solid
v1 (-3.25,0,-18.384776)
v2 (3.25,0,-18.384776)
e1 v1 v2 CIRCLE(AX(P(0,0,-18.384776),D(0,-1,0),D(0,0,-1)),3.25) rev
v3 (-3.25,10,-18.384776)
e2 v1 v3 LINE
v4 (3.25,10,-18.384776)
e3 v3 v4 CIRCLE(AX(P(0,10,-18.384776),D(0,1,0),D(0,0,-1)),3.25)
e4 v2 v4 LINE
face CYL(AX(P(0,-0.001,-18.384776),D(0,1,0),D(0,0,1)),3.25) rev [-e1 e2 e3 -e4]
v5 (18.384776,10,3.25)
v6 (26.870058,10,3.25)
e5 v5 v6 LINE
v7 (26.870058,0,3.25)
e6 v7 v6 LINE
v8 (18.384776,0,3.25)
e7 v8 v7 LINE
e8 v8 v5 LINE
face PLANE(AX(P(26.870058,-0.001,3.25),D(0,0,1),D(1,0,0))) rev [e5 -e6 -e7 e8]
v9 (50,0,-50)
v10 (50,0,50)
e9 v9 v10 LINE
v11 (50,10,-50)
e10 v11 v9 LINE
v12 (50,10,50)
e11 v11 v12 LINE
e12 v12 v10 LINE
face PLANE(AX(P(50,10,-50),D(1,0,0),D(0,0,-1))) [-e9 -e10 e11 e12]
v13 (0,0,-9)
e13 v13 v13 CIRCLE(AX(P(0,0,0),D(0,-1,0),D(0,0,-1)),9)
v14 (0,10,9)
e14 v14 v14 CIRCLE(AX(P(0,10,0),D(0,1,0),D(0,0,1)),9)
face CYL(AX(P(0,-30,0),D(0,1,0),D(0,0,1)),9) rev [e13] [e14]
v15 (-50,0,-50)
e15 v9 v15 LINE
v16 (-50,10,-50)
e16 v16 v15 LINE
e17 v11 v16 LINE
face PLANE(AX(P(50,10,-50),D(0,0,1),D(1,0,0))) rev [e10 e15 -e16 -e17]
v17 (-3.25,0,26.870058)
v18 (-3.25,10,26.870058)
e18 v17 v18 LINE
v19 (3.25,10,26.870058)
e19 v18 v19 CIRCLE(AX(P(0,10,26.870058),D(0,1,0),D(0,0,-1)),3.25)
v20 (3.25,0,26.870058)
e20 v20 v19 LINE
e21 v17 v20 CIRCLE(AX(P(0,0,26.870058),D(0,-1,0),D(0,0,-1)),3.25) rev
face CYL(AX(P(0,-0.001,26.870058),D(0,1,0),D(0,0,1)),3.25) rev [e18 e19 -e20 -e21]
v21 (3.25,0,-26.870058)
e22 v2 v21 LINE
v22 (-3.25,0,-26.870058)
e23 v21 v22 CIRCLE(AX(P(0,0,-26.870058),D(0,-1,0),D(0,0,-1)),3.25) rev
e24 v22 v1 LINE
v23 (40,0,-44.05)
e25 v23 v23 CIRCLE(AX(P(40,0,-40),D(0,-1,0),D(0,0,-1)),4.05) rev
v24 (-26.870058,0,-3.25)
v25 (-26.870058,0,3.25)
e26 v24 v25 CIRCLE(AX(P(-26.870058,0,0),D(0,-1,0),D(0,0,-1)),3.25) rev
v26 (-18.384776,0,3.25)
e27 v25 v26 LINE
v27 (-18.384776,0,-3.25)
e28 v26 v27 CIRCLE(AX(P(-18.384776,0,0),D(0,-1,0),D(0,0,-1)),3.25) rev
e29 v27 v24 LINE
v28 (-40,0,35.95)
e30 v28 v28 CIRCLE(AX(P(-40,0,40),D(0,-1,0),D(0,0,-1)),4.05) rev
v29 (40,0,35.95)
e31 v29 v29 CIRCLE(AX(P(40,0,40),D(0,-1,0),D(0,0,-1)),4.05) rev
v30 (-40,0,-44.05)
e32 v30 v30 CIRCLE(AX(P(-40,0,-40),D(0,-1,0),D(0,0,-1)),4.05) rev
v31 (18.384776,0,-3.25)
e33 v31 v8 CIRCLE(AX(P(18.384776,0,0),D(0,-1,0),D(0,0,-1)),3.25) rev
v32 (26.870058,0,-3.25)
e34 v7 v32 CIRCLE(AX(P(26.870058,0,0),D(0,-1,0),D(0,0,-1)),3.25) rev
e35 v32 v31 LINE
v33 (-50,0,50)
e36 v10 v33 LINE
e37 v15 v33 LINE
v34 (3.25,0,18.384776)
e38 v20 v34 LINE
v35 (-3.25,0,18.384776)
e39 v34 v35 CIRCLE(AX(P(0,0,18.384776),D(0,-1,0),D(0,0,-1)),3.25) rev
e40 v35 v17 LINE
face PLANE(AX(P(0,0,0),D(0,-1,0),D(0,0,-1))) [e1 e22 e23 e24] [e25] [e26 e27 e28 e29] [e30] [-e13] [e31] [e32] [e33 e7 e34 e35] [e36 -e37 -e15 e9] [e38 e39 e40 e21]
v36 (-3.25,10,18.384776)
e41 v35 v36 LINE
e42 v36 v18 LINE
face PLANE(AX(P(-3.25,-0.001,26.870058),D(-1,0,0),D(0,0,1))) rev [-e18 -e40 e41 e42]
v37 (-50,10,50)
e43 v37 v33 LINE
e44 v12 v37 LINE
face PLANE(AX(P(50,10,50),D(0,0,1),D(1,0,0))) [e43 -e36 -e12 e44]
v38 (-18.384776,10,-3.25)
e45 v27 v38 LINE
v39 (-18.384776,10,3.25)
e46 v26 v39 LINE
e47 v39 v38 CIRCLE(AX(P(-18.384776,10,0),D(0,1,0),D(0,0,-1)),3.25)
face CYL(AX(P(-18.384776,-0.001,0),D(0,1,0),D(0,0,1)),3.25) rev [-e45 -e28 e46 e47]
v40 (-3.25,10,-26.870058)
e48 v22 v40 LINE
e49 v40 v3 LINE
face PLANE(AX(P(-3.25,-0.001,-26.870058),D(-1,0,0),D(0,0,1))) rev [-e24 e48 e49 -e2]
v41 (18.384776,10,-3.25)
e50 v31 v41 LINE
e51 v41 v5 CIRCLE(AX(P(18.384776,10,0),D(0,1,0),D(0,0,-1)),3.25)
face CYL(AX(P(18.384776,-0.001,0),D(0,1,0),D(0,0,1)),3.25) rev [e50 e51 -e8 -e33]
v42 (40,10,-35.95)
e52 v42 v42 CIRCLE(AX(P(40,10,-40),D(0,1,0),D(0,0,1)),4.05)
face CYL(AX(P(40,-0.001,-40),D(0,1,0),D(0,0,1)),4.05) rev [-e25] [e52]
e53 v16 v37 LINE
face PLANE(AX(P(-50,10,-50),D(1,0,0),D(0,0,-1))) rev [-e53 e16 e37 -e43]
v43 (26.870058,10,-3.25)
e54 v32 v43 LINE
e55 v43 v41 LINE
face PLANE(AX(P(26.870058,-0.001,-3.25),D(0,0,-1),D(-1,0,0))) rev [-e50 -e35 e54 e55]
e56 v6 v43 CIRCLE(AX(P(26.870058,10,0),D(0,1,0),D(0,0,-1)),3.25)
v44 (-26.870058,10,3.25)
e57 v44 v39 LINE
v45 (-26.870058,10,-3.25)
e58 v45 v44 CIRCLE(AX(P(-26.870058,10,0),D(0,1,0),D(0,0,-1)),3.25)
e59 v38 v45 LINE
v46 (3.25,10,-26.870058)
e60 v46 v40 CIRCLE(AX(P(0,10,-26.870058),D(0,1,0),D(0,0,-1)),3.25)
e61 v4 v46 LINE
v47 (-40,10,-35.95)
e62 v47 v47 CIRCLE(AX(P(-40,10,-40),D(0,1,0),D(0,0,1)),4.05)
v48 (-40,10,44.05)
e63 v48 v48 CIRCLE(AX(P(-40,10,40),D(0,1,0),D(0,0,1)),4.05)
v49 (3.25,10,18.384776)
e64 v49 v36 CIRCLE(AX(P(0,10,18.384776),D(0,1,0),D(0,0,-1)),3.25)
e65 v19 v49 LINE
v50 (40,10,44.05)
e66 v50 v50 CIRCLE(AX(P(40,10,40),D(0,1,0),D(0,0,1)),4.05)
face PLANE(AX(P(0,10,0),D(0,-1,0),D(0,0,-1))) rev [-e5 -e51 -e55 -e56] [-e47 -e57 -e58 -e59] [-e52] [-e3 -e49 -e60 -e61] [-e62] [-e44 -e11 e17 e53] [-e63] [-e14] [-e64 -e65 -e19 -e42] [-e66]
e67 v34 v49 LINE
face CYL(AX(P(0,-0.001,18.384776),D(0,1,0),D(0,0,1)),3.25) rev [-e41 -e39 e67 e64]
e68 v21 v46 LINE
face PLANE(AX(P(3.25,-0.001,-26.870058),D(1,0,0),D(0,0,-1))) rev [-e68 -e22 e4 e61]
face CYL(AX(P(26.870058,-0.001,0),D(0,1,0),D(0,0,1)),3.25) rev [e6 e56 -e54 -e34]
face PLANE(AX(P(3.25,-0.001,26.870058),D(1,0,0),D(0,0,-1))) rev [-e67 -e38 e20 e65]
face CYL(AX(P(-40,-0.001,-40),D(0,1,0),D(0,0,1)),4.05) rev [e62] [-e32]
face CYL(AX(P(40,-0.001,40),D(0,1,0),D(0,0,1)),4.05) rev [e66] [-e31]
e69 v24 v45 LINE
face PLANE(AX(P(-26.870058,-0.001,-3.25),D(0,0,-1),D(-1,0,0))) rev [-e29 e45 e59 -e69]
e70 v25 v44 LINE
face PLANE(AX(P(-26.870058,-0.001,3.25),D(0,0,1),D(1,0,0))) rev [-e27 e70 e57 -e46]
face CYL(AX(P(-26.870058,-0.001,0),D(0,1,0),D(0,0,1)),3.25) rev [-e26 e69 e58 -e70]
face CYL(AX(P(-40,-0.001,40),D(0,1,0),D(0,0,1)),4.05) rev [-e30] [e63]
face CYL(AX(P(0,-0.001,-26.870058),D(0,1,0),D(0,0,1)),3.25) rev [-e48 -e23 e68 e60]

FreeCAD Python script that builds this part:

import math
import FreeCAD as App
import Part
import Sketcher

V = App.Vector

doc = App.newDocument("Part")
body = doc.addObject("PartDesign::Body", "Body")

# Sketch on XZ plane
sketch1 = doc.addObject("Sketcher::SketchObject", "Sketch")
body.addObject(sketch1)
sketch1.AttachmentSupport = (doc.XZ_Plane, [""])
sketch1.MapMode = "FlatFace"
sketch1.addGeometry(Part.LineSegment(V(-50, -50, 0), V(-50, 50, 0)), False)
sketch1.addGeometry(Part.LineSegment(V(-50, 50, 0), V(50, 50, 0)), False)
sketch1.addGeometry(Part.LineSegment(V(50, 50, 0), V(50, -50, 0)), False)
sketch1.addGeometry(Part.LineSegment(V(50, -50, 0), V(-50, -50, 0)), False)
sketch1.addConstraint(Sketcher.Constraint("Coincident", 0, 2, 1, 1))
sketch1.addConstraint(Sketcher.Constraint("Coincident", 1, 2, 2, 1))
sketch1.addConstraint(Sketcher.Constraint("Coincident", 2, 2, 3, 1))
sketch1.addConstraint(Sketcher.Constraint("Coincident", 3, 2, 0, 1))
sketch1.addConstraint(Sketcher.Constraint("Vertical", 0))
sketch1.addConstraint(Sketcher.Constraint("Horizontal", 1))
sketch1.addConstraint(Sketcher.Constraint("Vertical", 2))
sketch1.addConstraint(Sketcher.Constraint("Horizontal", 3))
sketch1.addConstraint(Sketcher.Constraint("Symmetric", 0, 2, 2, 2, -1, 1))
sketch1.addConstraint(Sketcher.Constraint("Equal", 3, 0))
sketch1.addConstraint(Sketcher.Constraint("DistanceX", 1, 1, 1, 2, 100.0))
pad1 = doc.addObject("PartDesign::Pad", "Pad")
body.addObject(pad1)
pad1.Profile = sketch1
pad1.Length = 10
pad1.Reversed = True

# Sketch on XZ plane
sketch2 = doc.addObject("Sketcher::SketchObject", "Sketch001")
body.addObject(sketch2)
sketch2.AttachmentSupport = (doc.XZ_Plane, [""])
sketch2.MapMode = "FlatFace"
sketch2.AttachmentOffset = App.Placement(V(0, 0, -10), App.Rotation())
sketch2.addGeometry(Part.Circle(V(0, 0, 0), V(0, 0, 1), 9), False)
sketch2.addConstraint(Sketcher.Constraint("Coincident", 0, 3, -1, 1))
sketch2.addConstraint(Sketcher.Constraint("Diameter", 0, 18.0))
pocket1 = doc.addObject("PartDesign::Pocket", "Pocket")
body.addObject(pocket1)
pocket1.Profile = sketch2
pocket1.Length = 40
pocket1.Reversed = True

# Sketch on XZ plane
sketch3 = doc.addObject("Sketcher::SketchObject", "Sketch002")
body.addObject(sketch3)
sketch3.AttachmentSupport = (doc.XZ_Plane, [""])
sketch3.MapMode = "FlatFace"
sketch3.AttachmentOffset = App.Placement(V(0, 0, -10), App.Rotation())
sketch3.addGeometry(Part.LineSegment(V(3.25, 26.870058, 0), V(3.25, 18.384776, 0)), False)
sketch3.addGeometry(Part.ArcOfCircle(Part.Circle(V(0, 18.384776, 0), V(0, 0, 1), 3.25), math.radians(180), math.radians(360)), False)
sketch3.addGeometry(Part.LineSegment(V(-3.25, 18.384776, 0), V(-3.25, 26.870058, 0)), False)
sketch3.addGeometry(Part.ArcOfCircle(Part.Circle(V(0, 26.870058, 0), V(0, 0, 1), 3.25), math.radians(0), math.radians(180)), False)
sketch3.addConstraint(Sketcher.Constraint("Tangent", 0, 2, 1, 2))
sketch3.addConstraint(Sketcher.Constraint("Tangent", 1, 1, 2, 1))
sketch3.addConstraint(Sketcher.Constraint("Tangent", 2, 2, 3, 2))
sketch3.addConstraint(Sketcher.Constraint("Tangent", 3, 1, 0, 1))
sketch3.addConstraint(Sketcher.Constraint("Vertical", 0))
sketch3.addConstraint(Sketcher.Constraint("Vertical", 2))
sketch3.addConstraint(Sketcher.Constraint("PointOnObject", 1, 3, -2))
sketch3.addConstraint(Sketcher.Constraint("Radius", 1, 3.25))
sketch3.addConstraint(Sketcher.Constraint("DistanceY", 0, 2, 0, 1, 8.485281))
sketch3.addConstraint(Sketcher.Constraint("DistanceY", -1, 1, 1, 3, 18.384776))
pocket2 = doc.addObject("PartDesign::Pocket", "Pocket001")
body.addObject(pocket2)
pocket2.Profile = sketch3
pocket2.Type = "UpToFirst"
pocket2.Reversed = True

# Sketch on XZ plane
sketch4 = doc.addObject("Sketcher::SketchObject", "Sketch003")
body.addObject(sketch4)
sketch4.AttachmentSupport = (doc.XZ_Plane, [""])
sketch4.MapMode = "FlatFace"
sketch4.AttachmentOffset = App.Placement(V(0, 0, -10), App.Rotation())
sketch4.addGeometry(Part.LineSegment(V(26.870058, -3.25, 0), V(18.384776, -3.25, 0)), False)
sketch4.addGeometry(Part.ArcOfCircle(Part.Circle(V(18.384776, 0, 0), V(0, 0, 1), 3.25), math.radians(90), math.radians(270)), False)
sketch4.addGeometry(Part.LineSegment(V(18.384776, 3.25, 0), V(26.870058, 3.25, 0)), False)
sketch4.addGeometry(Part.ArcOfCircle(Part.Circle(V(26.870058, 0, 0), V(0, 0, 1), 3.25), math.radians(-90), math.radians(90)), False)
sketch4.addConstraint(Sketcher.Constraint("Tangent", 0, 2, 1, 2))
sketch4.addConstraint(Sketcher.Constraint("Tangent", 1, 1, 2, 1))
sketch4.addConstraint(Sketcher.Constraint("Tangent", 2, 2, 3, 2))
sketch4.addConstraint(Sketcher.Constraint("Tangent", 3, 1, 0, 1))
sketch4.addConstraint(Sketcher.Constraint("Horizontal", 0))
sketch4.addConstraint(Sketcher.Constraint("Horizontal", 2))
sketch4.addConstraint(Sketcher.Constraint("PointOnObject", 1, 3, -1))
sketch4.addConstraint(Sketcher.Constraint("Radius", 1, 3.25))
sketch4.addConstraint(Sketcher.Constraint("DistanceX", 0, 2, 0, 1, 8.485281))
sketch4.addConstraint(Sketcher.Constraint("DistanceX", -1, 1, 1, 3, 18.384776))
pocket3 = doc.addObject("PartDesign::Pocket", "Pocket002")
body.addObject(pocket3)
pocket3.Profile = sketch4
pocket3.Type = "UpToFirst"
pocket3.Reversed = True

# Sketch on XZ plane
sketch5 = doc.addObject("Sketcher::SketchObject", "Sketch004")
body.addObject(sketch5)
sketch5.AttachmentSupport = (doc.XZ_Plane, [""])
sketch5.MapMode = "FlatFace"
sketch5.AttachmentOffset = App.Placement(V(0, 0, -10), App.Rotation())
sketch5.addGeometry(Part.LineSegment(V(-26.870058, 3.25, 0), V(-18.384776, 3.25, 0)), False)
sketch5.addGeometry(Part.ArcOfCircle(Part.Circle(V(-18.384776, 0, 0), V(0, 0, 1), 3.25), math.radians(-90), math.radians(90)), False)
sketch5.addGeometry(Part.LineSegment(V(-18.384776, -3.25, 0), V(-26.870058, -3.25, 0)), False)
sketch5.addGeometry(Part.ArcOfCircle(Part.Circle(V(-26.870058, 0, 0), V(0, 0, 1), 3.25), math.radians(90), math.radians(270)), False)
sketch5.addConstraint(Sketcher.Constraint("Tangent", 0, 2, 1, 2))
sketch5.addConstraint(Sketcher.Constraint("Tangent", 1, 1, 2, 1))
sketch5.addConstraint(Sketcher.Constraint("Tangent", 2, 2, 3, 2))
sketch5.addConstraint(Sketcher.Constraint("Tangent", 3, 1, 0, 1))
sketch5.addConstraint(Sketcher.Constraint("Horizontal", 0))
sketch5.addConstraint(Sketcher.Constraint("Horizontal", 2))
sketch5.addConstraint(Sketcher.Constraint("PointOnObject", 1, 3, -1))
sketch5.addConstraint(Sketcher.Constraint("Radius", 1, 3.25))
sketch5.addConstraint(Sketcher.Constraint("DistanceX", 0, 1, 0, 2, 8.485281))
sketch5.addConstraint(Sketcher.Constraint("DistanceX", 1, 3, -1, 1, 18.384776))
pocket4 = doc.addObject("PartDesign::Pocket", "Pocket003")
body.addObject(pocket4)
pocket4.Profile = sketch5
pocket4.Type = "UpToFirst"
pocket4.Reversed = True

# Sketch on XZ plane
sketch6 = doc.addObject("Sketcher::SketchObject", "Sketch005")
body.addObject(sketch6)
sketch6.AttachmentSupport = (doc.XZ_Plane, [""])
sketch6.MapMode = "FlatFace"
sketch6.AttachmentOffset = App.Placement(V(0, 0, -10), App.Rotation())
sketch6.addGeometry(Part.LineSegment(V(-3.25, -26.870058, 0), V(-3.25, -18.384776, 0)), False)
sketch6.addGeometry(Part.ArcOfCircle(Part.Circle(V(0, -18.384776, 0), V(0, 0, 1), 3.25), math.radians(0), math.radians(180)), False)
sketch6.addGeometry(Part.LineSegment(V(3.25, -18.384776, 0), V(3.25, -26.870058, 0)), False)
sketch6.addGeometry(Part.ArcOfCircle(Part.Circle(V(0, -26.870058, 0), V(0, 0, 1), 3.25), math.radians(180), math.radians(360)), False)
sketch6.addConstraint(Sketcher.Constraint("Tangent", 0, 2, 1, 2))
sketch6.addConstraint(Sketcher.Constraint("Tangent", 1, 1, 2, 1))
sketch6.addConstraint(Sketcher.Constraint("Tangent", 2, 2, 3, 2))
sketch6.addConstraint(Sketcher.Constraint("Tangent", 3, 1, 0, 1))
sketch6.addConstraint(Sketcher.Constraint("Vertical", 0))
sketch6.addConstraint(Sketcher.Constraint("Vertical", 2))
sketch6.addConstraint(Sketcher.Constraint("PointOnObject", 1, 3, -2))
sketch6.addConstraint(Sketcher.Constraint("Radius", 1, 3.25))
sketch6.addConstraint(Sketcher.Constraint("DistanceY", 0, 1, 0, 2, 8.485281))
sketch6.addConstraint(Sketcher.Constraint("DistanceY", 1, 3, -1, 1, 18.384776))
pocket5 = doc.addObject("PartDesign::Pocket", "Pocket004")
body.addObject(pocket5)
pocket5.Profile = sketch6
pocket5.Type = "UpToFirst"
pocket5.Reversed = True

# Sketch on XZ plane
sketch7 = doc.addObject("Sketcher::SketchObject", "Sketch006")
body.addObject(sketch7)
sketch7.AttachmentSupport = (doc.XZ_Plane, [""])
sketch7.MapMode = "FlatFace"
sketch7.AttachmentOffset = App.Placement(V(0, 0, -10), App.Rotation())
sketch7.addGeometry(Part.Circle(V(-40, 40, 0), V(0, 0, 1), 4.05), False)
sketch7.addConstraint(Sketcher.Constraint("Diameter", 0, 8.1))
sketch7.addConstraint(Sketcher.Constraint("DistanceX", 0, 3, -1, 1, 40.0))
sketch7.addConstraint(Sketcher.Constraint("DistanceY", -1, 1, 0, 3, 40.0))
pocket6 = doc.addObject("PartDesign::Pocket", "Pocket005")
body.addObject(pocket6)
pocket6.Profile = sketch7
pocket6.Type = "UpToFirst"
pocket6.Reversed = True

# Sketch on XZ plane
sketch8 = doc.addObject("Sketcher::SketchObject", "Sketch007")
body.addObject(sketch8)
sketch8.AttachmentSupport = (doc.XZ_Plane, [""])
sketch8.MapMode = "FlatFace"
sketch8.AttachmentOffset = App.Placement(V(0, 0, -10), App.Rotation())
sketch8.addGeometry(Part.Circle(V(-40, -40, 0), V(0, 0, 1), 4.05), False)
sketch8.addConstraint(Sketcher.Constraint("Diameter", 0, 8.1))
sketch8.addConstraint(Sketcher.Constraint("DistanceX", 0, 3, -1, 1, 40.0))
sketch8.addConstraint(Sketcher.Constraint("DistanceY", 0, 3, -1, 1, 40.0))
pocket7 = doc.addObject("PartDesign::Pocket", "Pocket006")
body.addObject(pocket7)
pocket7.Profile = sketch8
pocket7.Type = "UpToFirst"
pocket7.Reversed = True

# Sketch on XZ plane
sketch9 = doc.addObject("Sketcher::SketchObject", "Sketch008")
body.addObject(sketch9)
sketch9.AttachmentSupport = (doc.XZ_Plane, [""])
sketch9.MapMode = "FlatFace"
sketch9.AttachmentOffset = App.Placement(V(0, 0, -10), App.Rotation())
sketch9.addGeometry(Part.Circle(V(40, 40, 0), V(0, 0, 1), 4.05), False)
sketch9.addConstraint(Sketcher.Constraint("Diameter", 0, 8.1))
sketch9.addConstraint(Sketcher.Constraint("DistanceX", -1, 1, 0, 3, 40.0))
sketch9.addConstraint(Sketcher.Constraint("DistanceY", -1, 1, 0, 3, 40.0))
pocket8 = doc.addObject("PartDesign::Pocket", "Pocket007")
body.addObject(pocket8)
pocket8.Profile = sketch9
pocket8.Type = "UpToFirst"
pocket8.Reversed = True

# Sketch on XZ plane
sketch10 = doc.addObject("Sketcher::SketchObject", "Sketch009")
body.addObject(sketch10)
sketch10.AttachmentSupport = (doc.XZ_Plane, [""])
sketch10.MapMode = "FlatFace"
sketch10.AttachmentOffset = App.Placement(V(0, 0, -10), App.Rotation())
sketch10.addGeometry(Part.Circle(V(40, -40, 0), V(0, 0, 1), 4.05), False)
sketch10.addConstraint(Sketcher.Constraint("Diameter", 0, 8.1))
sketch10.addConstraint(Sketcher.Constraint("DistanceX", -1, 1, 0, 3, 40.0))
sketch10.addConstraint(Sketcher.Constraint("DistanceY", 0, 3, -1, 1, 40.0))
pocket9 = doc.addObject("PartDesign::Pocket", "Pocket008")
body.addObject(pocket9)
pocket9.Profile = sketch10
pocket9.Type = "UpToFirst"
pocket9.Reversed = True

doc.recompute()
